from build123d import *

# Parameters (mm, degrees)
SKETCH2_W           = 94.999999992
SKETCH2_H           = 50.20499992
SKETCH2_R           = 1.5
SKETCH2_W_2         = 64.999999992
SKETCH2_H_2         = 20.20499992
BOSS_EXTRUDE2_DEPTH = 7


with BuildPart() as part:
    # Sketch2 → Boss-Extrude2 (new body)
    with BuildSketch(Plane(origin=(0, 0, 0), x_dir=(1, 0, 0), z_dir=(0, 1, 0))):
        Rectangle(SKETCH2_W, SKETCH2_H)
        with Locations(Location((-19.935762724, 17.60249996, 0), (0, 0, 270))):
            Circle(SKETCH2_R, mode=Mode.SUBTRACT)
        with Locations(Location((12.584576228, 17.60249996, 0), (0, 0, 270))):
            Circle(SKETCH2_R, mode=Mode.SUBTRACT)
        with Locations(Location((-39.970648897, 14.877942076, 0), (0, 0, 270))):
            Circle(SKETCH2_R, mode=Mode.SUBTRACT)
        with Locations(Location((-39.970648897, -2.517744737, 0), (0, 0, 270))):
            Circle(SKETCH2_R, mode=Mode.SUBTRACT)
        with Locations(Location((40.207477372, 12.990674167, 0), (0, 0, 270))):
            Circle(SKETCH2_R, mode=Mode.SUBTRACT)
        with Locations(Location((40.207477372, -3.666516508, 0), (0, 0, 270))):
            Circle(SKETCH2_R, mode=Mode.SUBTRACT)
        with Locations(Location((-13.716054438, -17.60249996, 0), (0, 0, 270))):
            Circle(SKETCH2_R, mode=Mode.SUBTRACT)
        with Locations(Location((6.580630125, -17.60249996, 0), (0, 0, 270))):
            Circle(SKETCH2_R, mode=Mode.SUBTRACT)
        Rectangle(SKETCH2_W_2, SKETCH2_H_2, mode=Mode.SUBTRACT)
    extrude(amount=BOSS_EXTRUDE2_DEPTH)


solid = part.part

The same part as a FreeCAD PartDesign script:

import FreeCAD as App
import Part
import Sketcher
Q = App.Units.Quantity

doc = App.newDocument("Part")
body = doc.addObject("PartDesign::Body", "Body")

# Sketch on XZ plane
sketch1 = body.newObject("Sketcher::SketchObject", "Sketch")
sketch1.AttachmentSupport = (doc.getObject("XZ_Plane"), [""])
sketch1.MapMode = "FlatFace"
sketch1.addGeometry(Part.LineSegment(App.Vector(-47.5, -25.1025, 0), App.Vector(-47.5, 25.1025, 0)), False)
sketch1.addGeometry(Part.LineSegment(App.Vector(-47.5, 25.1025, 0), App.Vector(47.5, 25.1025, 0)), False)
sketch1.addGeometry(Part.LineSegment(App.Vector(47.5, 25.1025, 0), App.Vector(47.5, -25.1025, 0)), False)
sketch1.addGeometry(Part.LineSegment(App.Vector(47.5, -25.1025, 0), App.Vector(-47.5, -25.1025, 0)), False)
sketch1.addGeometry(Part.Circle(App.Vector(-13.716054, 17.6025, 0), App.Vector(0, 0, 1), 1.5), False)
sketch1.addGeometry(Part.Circle(App.Vector(-39.970649, 2.517745, 0), App.Vector(0, 0, 1), 1.5), False)
sketch1.addGeometry(Part.Circle(App.Vector(6.58063, 17.6025, 0), App.Vector(0, 0, 1), 1.5), False)
sketch1.addGeometry(Part.Circle(App.Vector(40.207477, 3.666517, 0), App.Vector(0, 0, 1), 1.5), False)
sketch1.addGeometry(Part.LineSegment(App.Vector(32.5, 10.1025, 0), App.Vector(-32.5, 10.1025, 0)), False)
sketch1.addGeometry(Part.LineSegment(App.Vector(-32.5, 10.1025, 0), App.Vector(-32.5, -10.1025, 0)), False)
sketch1.addGeometry(Part.LineSegment(App.Vector(-32.5, -10.1025, 0), App.Vector(32.5, -10.1025, 0)), False)
sketch1.addGeometry(Part.LineSegment(App.Vector(32.5, -10.1025, 0), App.Vector(32.5, 10.1025, 0)), False)
sketch1.addGeometry(Part.Circle(App.Vector(-39.970649, -14.877942, 0), App.Vector(0, 0, 1), 1.5), False)
sketch1.addGeometry(Part.Circle(App.Vector(-19.935763, -17.6025, 0), App.Vector(0, 0, 1), 1.5), False)
sketch1.addGeometry(Part.Circle(App.Vector(12.584576, -17.6025, 0), App.Vector(0, 0, 1), 1.5), False)
sketch1.addGeometry(Part.Circle(App.Vector(40.207477, -12.990674, 0), App.Vector(0, 0, 1), 1.5), False)
sketch1.addConstraint(Sketcher.Constraint("Coincident", 0, 2, 1, 1))
sketch1.addConstraint(Sketcher.Constraint("Coincident", 1, 2, 2, 1))
sketch1.addConstraint(Sketcher.Constraint("Coincident", 2, 2, 3, 1))
sketch1.addConstraint(Sketcher.Constraint("Coincident", 3, 2, 0, 1))
sketch1.addConstraint(Sketcher.Constraint("Coincident", 8, 2, 9, 1))
sketch1.addConstraint(Sketcher.Constraint("Coincident", 9, 2, 10, 1))
sketch1.addConstraint(Sketcher.Constraint("Coincident", 10, 2, 11, 1))
sketch1.addConstraint(Sketcher.Constraint("Coincident", 11, 2, 8, 1))
sketch1.addConstraint(Sketcher.Constraint("Vertical", 0))
sketch1.addConstraint(Sketcher.Constraint("Horizontal", 1))
sketch1.addConstraint(Sketcher.Constraint("Vertical", 2))
sketch1.addConstraint(Sketcher.Constraint("Horizontal", 3))
sketch1.addConstraint(Sketcher.Constraint("Horizontal", 8))
sketch1.addConstraint(Sketcher.Constraint("Vertical", 9))
sketch1.addConstraint(Sketcher.Constraint("Horizontal", 10))
sketch1.addConstraint(Sketcher.Constraint("Vertical", 11))
sketch1.addConstraint(Sketcher.Constraint("Equal", 4, 5))
sketch1.addConstraint(Sketcher.Constraint("Equal", 5, 6))
sketch1.addConstraint(Sketcher.Constraint("Equal", 6, 7))
sketch1.addConstraint(Sketcher.Constraint("Equal", 7, 12))
sketch1.addConstraint(Sketcher.Constraint("Equal", 12, 13))
sketch1.addConstraint(Sketcher.Constraint("Equal", 13, 14))
sketch1.addConstraint(Sketcher.Constraint("Equal", 14, 15))
sketch1.addConstraint(Sketcher.Constraint("Symmetric", 0, 2, 2, 2, -1, 1))
sketch1.addConstraint(Sketcher.Constraint("Symmetric", 8, 2, 10, 2, -1, 1))
sketch1.addConstraint(Sketcher.Constraint("Horizontal", 4, 3, 6, 3))
sketch1.addConstraint(Sketcher.Constraint("Horizontal", 13, 3, 14, 3))
sketch1.addConstraint(Sketcher.Constraint("Vertical", 5, 3, 12, 3))
sketch1.addConstraint(Sketcher.Constraint("Vertical", 7, 3, 15, 3))
sketch1.addConstraint(Sketcher.Constraint("Diameter", 4, Q("3 mm")))
sketch1.addConstraint(Sketcher.Constraint("DistanceX", 1, 1, 1, 2, Q("95 mm")))
sketch1.addConstraint(Sketcher.Constraint("DistanceX", 8, 2, 8, 1, Q("65 mm")))
sketch1.addConstraint(Sketcher.Constraint("DistanceY", 8, 2, 0, 2, Q("15 mm")))
sketch1.addConstraint(Sketcher.Constraint("DistanceY", 4, 3, 0, 2, Q("7.5 mm")))
sketch1.addConstraint(Sketcher.Constraint("DistanceY", 2, 2, 14, 3, Q("7.5 mm")))
sketch1.addConstraint(Sketcher.Constraint("DistanceY", 0, 1, 0, 2, Q("50.205 mm")))
sketch1.addConstraint(Sketcher.Constraint("DistanceX", 14, 3, 7, 3, Q("27.622901 mm")))
sketch1.addConstraint(Sketcher.Constraint("DistanceX", 5, 3, -1, 1, Q("39.970649 mm")))
sketch1.addConstraint(Sketcher.Constraint("DistanceX", -1, 1, 6, 3, Q("6.58063 mm")))
sketch1.addConstraint(Sketcher.Constraint("DistanceX", 4, 3, 7, 3, Q("53.923532 mm")))
sketch1.addConstraint(Sketcher.Constraint("DistanceY", 5, 3, 7, 3, Q("1.148772 mm")))
sketch1.addConstraint(Sketcher.Constraint("DistanceY", 12, 3, 7, 3, Q("18.544459 mm")))
sketch1.addConstraint(Sketcher.Constraint("DistanceX", 13, 3, 4, 3, Q("6.219708 mm")))
sketch1.addConstraint(Sketcher.Constraint("DistanceY", 15, 3, 7, 3, Q("16.657191 mm")))
sketch1.addConstraint(Sketcher.Constraint("DistanceX", 4, 3, -1, 1, Q("13.716054 mm")))
sketch1.addConstraint(Sketcher.Constraint("DistanceY", -1, 1, 5, 3, Q("2.517745 mm")))
pad1 = body.newObject("PartDesign::Pad", "Pad")
pad1.Profile = sketch1
pad1.Length = 7
pad1.Reversed = True

doc.recompute()
